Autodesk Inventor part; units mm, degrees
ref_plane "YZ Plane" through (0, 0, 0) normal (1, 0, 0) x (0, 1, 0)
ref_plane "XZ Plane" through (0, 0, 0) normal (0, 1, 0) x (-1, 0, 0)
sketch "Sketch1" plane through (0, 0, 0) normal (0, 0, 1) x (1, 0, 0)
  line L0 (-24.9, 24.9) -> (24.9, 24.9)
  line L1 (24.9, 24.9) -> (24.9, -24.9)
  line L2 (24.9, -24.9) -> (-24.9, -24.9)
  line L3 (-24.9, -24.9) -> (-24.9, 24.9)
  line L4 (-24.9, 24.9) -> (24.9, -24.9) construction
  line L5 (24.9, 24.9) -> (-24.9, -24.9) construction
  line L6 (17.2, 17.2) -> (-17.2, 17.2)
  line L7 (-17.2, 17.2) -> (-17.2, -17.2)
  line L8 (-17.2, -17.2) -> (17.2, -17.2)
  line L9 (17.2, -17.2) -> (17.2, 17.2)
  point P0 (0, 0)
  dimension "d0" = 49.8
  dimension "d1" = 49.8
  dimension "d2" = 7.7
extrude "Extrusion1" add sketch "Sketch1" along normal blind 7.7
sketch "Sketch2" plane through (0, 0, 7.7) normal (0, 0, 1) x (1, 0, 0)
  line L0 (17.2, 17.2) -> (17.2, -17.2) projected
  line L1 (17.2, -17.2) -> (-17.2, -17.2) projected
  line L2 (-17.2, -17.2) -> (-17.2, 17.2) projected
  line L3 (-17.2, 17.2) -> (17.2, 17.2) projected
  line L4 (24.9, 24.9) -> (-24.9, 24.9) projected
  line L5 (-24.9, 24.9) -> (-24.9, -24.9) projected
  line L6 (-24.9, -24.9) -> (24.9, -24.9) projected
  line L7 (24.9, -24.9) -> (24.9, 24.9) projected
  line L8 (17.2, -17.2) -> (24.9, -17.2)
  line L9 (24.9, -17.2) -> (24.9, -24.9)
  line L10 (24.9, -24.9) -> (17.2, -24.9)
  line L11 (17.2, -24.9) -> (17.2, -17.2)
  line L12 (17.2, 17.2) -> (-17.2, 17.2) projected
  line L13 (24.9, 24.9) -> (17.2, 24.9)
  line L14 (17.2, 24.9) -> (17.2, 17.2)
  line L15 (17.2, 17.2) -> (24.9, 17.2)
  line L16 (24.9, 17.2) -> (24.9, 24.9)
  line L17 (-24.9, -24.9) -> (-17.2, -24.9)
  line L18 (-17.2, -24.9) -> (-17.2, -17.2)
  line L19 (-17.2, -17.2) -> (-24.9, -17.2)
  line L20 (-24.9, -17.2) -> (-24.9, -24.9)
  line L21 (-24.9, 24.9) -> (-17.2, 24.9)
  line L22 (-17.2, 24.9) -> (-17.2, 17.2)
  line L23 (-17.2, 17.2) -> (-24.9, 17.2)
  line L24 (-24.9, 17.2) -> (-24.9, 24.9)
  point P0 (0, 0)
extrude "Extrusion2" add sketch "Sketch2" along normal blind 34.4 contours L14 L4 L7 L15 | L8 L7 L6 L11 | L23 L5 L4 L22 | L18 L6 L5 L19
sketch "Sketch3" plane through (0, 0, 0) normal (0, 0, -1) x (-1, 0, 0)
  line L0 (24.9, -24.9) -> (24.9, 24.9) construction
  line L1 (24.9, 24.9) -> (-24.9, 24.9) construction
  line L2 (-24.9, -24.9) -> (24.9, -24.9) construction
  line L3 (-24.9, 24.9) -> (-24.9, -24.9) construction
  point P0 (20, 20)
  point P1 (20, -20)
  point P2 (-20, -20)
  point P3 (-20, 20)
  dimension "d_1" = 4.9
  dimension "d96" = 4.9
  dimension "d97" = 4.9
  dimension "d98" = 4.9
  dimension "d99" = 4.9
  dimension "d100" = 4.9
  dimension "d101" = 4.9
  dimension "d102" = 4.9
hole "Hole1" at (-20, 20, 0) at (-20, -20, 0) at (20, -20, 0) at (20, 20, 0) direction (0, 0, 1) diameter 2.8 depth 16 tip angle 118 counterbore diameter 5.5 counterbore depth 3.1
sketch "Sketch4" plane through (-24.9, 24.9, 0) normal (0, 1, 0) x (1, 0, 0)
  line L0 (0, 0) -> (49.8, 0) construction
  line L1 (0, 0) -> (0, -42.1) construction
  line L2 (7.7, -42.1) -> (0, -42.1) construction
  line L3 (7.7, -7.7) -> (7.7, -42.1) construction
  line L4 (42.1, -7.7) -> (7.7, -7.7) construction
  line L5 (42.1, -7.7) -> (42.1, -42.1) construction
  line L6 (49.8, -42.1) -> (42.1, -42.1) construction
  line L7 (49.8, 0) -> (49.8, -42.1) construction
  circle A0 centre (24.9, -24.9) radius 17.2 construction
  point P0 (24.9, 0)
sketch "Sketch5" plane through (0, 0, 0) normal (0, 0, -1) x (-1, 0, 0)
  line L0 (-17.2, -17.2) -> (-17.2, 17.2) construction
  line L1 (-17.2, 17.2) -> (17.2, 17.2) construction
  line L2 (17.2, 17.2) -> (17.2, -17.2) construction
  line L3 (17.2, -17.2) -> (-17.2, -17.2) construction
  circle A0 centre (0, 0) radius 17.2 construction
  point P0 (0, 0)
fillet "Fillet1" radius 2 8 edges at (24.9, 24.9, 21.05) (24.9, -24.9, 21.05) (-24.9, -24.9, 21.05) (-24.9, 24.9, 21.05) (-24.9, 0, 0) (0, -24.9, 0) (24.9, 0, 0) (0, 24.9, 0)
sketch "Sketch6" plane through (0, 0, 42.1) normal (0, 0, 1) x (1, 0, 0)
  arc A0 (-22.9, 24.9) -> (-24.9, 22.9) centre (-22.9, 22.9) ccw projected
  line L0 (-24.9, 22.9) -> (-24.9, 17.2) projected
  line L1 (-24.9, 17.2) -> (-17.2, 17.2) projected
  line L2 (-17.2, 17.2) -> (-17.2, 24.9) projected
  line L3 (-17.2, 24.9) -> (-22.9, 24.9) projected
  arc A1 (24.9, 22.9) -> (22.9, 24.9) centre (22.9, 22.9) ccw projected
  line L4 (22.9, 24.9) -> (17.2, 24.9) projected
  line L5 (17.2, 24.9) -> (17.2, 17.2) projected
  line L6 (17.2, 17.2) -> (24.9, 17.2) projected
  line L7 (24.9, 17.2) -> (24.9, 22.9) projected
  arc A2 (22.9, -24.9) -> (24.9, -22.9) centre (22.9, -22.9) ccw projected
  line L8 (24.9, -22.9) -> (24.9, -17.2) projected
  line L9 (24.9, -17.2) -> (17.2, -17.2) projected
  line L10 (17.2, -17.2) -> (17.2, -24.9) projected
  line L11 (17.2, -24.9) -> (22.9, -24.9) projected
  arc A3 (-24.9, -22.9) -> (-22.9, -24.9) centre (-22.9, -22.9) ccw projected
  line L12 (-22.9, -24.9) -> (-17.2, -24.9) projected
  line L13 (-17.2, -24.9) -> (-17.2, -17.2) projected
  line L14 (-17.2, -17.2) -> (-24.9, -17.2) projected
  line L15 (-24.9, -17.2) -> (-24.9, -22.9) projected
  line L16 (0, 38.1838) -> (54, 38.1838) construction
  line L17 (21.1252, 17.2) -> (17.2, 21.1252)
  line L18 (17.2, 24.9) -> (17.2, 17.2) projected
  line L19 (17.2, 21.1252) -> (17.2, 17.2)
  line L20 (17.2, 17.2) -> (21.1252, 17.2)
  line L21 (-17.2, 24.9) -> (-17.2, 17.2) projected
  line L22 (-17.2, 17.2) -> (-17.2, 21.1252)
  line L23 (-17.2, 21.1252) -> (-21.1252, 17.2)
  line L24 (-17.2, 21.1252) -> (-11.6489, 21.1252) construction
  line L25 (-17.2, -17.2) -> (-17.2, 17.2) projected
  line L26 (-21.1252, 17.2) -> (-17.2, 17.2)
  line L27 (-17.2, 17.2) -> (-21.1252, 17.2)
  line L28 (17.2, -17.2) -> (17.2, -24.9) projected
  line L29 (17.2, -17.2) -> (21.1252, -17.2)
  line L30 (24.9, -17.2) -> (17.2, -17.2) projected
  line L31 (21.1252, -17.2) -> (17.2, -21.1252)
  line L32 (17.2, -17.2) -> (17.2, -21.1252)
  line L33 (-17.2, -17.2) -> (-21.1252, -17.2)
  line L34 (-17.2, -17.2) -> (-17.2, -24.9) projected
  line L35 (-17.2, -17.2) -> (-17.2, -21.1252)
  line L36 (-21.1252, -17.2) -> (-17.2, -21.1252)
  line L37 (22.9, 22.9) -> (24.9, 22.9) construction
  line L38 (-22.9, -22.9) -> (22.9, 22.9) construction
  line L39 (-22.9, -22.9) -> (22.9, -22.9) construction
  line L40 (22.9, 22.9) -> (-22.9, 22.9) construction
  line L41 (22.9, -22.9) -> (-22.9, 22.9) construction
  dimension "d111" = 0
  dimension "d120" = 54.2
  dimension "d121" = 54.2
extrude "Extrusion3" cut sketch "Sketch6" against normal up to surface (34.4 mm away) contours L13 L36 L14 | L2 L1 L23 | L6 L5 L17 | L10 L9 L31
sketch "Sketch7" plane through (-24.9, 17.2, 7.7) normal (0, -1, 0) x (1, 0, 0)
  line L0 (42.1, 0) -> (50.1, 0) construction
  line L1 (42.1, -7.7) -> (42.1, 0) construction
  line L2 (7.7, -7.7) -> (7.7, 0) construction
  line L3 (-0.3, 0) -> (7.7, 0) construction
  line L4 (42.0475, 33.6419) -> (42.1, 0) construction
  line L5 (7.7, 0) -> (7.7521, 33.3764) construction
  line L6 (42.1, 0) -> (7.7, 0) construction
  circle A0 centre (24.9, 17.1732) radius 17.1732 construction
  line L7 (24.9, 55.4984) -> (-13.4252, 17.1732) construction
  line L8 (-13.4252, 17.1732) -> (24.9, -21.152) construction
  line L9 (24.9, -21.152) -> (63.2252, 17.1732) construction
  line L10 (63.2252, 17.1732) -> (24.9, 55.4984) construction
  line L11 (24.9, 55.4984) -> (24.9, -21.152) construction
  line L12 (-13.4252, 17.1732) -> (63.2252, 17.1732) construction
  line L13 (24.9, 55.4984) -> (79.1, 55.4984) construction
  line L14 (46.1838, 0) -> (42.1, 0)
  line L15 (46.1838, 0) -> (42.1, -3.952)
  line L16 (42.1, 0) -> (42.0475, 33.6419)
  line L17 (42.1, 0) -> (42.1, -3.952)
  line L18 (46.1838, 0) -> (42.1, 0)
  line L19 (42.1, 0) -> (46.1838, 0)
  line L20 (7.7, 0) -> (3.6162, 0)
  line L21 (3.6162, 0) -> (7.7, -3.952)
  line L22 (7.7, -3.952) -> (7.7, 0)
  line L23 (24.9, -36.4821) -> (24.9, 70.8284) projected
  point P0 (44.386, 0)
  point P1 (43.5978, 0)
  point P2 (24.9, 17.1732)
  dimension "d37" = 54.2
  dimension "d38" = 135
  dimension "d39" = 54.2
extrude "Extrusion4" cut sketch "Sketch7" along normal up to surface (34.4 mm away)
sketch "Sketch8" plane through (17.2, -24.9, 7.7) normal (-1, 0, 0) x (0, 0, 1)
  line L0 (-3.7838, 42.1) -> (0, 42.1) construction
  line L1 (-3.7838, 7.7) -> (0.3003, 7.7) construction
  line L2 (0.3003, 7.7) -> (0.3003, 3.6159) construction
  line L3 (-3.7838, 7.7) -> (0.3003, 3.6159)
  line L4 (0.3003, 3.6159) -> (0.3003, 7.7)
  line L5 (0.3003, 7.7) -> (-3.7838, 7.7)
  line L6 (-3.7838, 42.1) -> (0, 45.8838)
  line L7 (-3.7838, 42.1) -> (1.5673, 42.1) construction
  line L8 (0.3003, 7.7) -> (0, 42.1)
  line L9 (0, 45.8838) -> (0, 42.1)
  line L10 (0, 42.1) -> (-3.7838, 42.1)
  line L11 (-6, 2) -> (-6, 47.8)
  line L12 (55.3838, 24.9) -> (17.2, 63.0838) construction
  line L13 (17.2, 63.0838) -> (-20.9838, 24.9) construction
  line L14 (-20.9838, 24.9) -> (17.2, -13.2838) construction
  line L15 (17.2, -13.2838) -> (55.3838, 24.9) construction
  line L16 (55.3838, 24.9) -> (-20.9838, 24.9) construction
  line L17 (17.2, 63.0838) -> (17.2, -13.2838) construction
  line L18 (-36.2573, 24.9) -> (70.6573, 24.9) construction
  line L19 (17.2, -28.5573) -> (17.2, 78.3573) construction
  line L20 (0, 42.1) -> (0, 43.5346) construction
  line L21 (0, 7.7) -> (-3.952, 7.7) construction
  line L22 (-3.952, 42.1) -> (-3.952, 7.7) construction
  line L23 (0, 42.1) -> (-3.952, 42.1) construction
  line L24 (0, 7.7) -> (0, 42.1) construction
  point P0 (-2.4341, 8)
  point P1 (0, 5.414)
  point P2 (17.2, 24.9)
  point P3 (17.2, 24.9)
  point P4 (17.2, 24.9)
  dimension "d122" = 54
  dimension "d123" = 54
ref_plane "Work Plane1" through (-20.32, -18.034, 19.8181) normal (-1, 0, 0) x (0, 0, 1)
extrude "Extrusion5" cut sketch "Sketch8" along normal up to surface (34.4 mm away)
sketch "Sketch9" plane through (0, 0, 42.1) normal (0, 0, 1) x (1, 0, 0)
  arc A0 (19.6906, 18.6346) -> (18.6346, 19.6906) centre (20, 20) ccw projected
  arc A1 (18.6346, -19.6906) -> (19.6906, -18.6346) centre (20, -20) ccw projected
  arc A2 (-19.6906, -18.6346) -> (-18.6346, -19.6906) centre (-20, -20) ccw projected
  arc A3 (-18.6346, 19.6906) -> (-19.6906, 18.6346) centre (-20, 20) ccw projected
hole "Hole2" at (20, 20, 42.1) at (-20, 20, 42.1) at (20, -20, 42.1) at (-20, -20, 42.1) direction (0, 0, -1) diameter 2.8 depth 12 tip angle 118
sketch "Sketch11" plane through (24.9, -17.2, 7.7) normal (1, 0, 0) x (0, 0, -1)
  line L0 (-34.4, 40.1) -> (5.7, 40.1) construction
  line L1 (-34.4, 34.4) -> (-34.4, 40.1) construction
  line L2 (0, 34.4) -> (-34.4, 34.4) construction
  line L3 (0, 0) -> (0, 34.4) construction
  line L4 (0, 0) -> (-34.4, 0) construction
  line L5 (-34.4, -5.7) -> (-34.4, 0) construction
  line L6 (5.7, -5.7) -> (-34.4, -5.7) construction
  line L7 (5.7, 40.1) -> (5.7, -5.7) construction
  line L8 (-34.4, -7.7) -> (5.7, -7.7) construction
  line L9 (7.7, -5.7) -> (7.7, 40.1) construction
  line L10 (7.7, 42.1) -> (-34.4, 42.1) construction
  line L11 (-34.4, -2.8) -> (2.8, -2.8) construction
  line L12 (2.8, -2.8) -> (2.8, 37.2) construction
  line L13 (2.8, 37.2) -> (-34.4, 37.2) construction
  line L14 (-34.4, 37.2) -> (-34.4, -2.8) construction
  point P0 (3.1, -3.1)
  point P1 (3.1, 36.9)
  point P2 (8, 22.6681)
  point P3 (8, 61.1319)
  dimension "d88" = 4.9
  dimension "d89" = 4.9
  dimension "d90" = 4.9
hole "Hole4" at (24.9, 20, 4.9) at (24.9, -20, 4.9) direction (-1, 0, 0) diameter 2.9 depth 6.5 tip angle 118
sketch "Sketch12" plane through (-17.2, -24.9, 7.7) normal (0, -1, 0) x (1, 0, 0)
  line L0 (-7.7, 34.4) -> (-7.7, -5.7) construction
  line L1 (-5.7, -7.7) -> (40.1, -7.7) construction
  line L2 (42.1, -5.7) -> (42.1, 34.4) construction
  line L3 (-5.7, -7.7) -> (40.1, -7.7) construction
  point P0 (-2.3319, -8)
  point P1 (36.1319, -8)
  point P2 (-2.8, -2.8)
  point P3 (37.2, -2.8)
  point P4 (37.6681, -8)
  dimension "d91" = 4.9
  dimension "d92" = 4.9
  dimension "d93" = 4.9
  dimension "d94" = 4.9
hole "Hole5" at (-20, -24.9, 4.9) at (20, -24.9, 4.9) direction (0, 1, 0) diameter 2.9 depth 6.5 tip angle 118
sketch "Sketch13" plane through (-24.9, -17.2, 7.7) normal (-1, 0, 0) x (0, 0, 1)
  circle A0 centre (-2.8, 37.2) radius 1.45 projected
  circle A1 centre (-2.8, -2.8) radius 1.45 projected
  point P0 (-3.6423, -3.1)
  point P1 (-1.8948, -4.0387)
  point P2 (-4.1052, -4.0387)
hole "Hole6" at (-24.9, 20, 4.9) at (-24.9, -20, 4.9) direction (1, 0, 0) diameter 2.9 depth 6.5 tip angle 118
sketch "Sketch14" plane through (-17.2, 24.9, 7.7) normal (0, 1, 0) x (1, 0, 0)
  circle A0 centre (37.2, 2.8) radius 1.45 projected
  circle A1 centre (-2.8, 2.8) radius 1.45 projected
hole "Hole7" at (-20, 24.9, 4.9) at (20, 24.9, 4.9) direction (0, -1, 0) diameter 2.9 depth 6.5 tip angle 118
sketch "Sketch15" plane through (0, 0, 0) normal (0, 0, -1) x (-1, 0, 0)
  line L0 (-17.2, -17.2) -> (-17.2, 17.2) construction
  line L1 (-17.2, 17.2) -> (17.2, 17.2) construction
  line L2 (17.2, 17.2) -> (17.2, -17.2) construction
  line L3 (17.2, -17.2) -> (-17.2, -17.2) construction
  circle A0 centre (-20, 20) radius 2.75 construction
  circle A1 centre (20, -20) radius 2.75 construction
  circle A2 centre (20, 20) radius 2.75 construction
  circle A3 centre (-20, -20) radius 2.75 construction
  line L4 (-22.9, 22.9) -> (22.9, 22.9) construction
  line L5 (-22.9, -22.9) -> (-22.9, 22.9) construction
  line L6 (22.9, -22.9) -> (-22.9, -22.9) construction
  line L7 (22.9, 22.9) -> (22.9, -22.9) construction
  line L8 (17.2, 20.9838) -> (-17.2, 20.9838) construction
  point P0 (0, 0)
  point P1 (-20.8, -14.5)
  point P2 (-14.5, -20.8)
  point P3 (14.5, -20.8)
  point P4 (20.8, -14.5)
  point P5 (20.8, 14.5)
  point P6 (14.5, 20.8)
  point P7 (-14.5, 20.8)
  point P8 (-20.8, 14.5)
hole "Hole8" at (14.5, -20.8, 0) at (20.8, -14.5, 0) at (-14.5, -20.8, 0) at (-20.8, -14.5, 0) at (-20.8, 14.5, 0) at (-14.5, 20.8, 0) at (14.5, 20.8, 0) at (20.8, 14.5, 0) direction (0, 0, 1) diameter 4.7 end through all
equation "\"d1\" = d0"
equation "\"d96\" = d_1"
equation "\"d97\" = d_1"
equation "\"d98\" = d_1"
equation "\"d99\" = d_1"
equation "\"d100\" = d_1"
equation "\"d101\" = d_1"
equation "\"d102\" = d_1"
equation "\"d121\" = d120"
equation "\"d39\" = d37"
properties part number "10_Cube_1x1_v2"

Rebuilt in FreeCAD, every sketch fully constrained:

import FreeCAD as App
import Part
import Sketcher
Q = App.Units.Quantity


def edges_at(feature, points):
    """Names of the edges that pass closest to the given points."""
    edges = feature.Shape.Edges
    near = lambda p: min(range(len(edges)), key=lambda i: edges[i].distToShape(Part.Vertex(*p))[0])
    return sorted({f"Edge{near(p) + 1}" for p in points})

doc = App.newDocument("Part")
body = doc.addObject("PartDesign::Body", "Body")

sketch1 = doc.addObject("Sketcher::SketchObject", "Sketch")
body.addObject(sketch1)
sketch1.AttachmentSupport = (doc.XY_Plane, [""])
sketch1.MapMode = "FlatFace"
sketch1.addGeometry([
    Part.LineSegment(App.Vector(24.9, 24.9, 0), App.Vector(-24.9, 24.9, 0)),
    Part.LineSegment(App.Vector(-24.9, 24.9, 0), App.Vector(-24.9, -24.9, 0)),
    Part.LineSegment(App.Vector(-24.9, -24.9, 0), App.Vector(24.9, -24.9, 0)),
    Part.LineSegment(App.Vector(24.9, -24.9, 0), App.Vector(24.9, 24.9, 0)),
    Part.LineSegment(App.Vector(-17.2, 17.2, 0), App.Vector(17.2, 17.2, 0)),
    Part.LineSegment(App.Vector(17.2, 17.2, 0), App.Vector(17.2, -17.2, 0)),
    Part.LineSegment(App.Vector(17.2, -17.2, 0), App.Vector(-17.2, -17.2, 0)),
    Part.LineSegment(App.Vector(-17.2, -17.2, 0), App.Vector(-17.2, 17.2, 0)),
], False)
sketch1.addConstraint([
    Sketcher.Constraint("Coincident", 0, 2, 1, 1),
    Sketcher.Constraint("Coincident", 1, 2, 2, 1),
    Sketcher.Constraint("Coincident", 2, 2, 3, 1),
    Sketcher.Constraint("Coincident", 3, 2, 0, 1),
    Sketcher.Constraint("Coincident", 4, 2, 5, 1),
    Sketcher.Constraint("Coincident", 5, 2, 6, 1),
    Sketcher.Constraint("Coincident", 6, 2, 7, 1),
    Sketcher.Constraint("Coincident", 7, 2, 4, 1),
    Sketcher.Constraint("Horizontal", 0),
    Sketcher.Constraint("Vertical", 1),
    Sketcher.Constraint("Horizontal", 2),
    Sketcher.Constraint("Vertical", 3),
    Sketcher.Constraint("Horizontal", 4),
    Sketcher.Constraint("Vertical", 5),
    Sketcher.Constraint("Horizontal", 6),
    Sketcher.Constraint("Vertical", 7),
    Sketcher.Constraint("Symmetric", 0, 2, 2, 2, -1, 1),
    Sketcher.Constraint("Symmetric", 4, 2, 6, 2, -1, 1),
    Sketcher.Constraint("Equal", 2, 1),
    Sketcher.Constraint("Equal", 6, 5),
    Sketcher.Constraint("DistanceX", 0, 2, 0, 1, Q("49.8 mm")),
    Sketcher.Constraint("DistanceX", 4, 2, 3, 2, Q("7.7 mm")),
])
pad1 = doc.addObject("PartDesign::Pad", "Pad")
body.addObject(pad1)
pad1.Profile = sketch1
pad1.Length = 7.7

sketch2 = doc.addObject("Sketcher::SketchObject", "Sketch001")
body.addObject(sketch2)
sketch2.AttachmentSupport = (doc.XY_Plane, [""])
sketch2.MapMode = "FlatFace"
sketch2.AttachmentOffset = App.Placement(App.Vector(0, 0, 7.7), App.Rotation())
sketch2.addGeometry([
    Part.LineSegment(App.Vector(17.2, 24.9, 0), App.Vector(17.2, 17.2, 0)),
    Part.LineSegment(App.Vector(17.2, 17.2, 0), App.Vector(24.9, 17.2, 0)),
    Part.LineSegment(App.Vector(24.9, 17.2, 0), App.Vector(24.9, 24.9, 0)),
    Part.LineSegment(App.Vector(24.9, 24.9, 0), App.Vector(17.2, 24.9, 0)),
    Part.LineSegment(App.Vector(24.9, -17.2, 0), App.Vector(17.2, -17.2, 0)),
    Part.LineSegment(App.Vector(17.2, -17.2, 0), App.Vector(17.2, -24.9, 0)),
    Part.LineSegment(App.Vector(17.2, -24.9, 0), App.Vector(24.9, -24.9, 0)),
    Part.LineSegment(App.Vector(24.9, -24.9, 0), App.Vector(24.9, -17.2, 0)),
    Part.LineSegment(App.Vector(-24.9, 17.2, 0), App.Vector(-17.2, 17.2, 0)),
    Part.LineSegment(App.Vector(-17.2, 17.2, 0), App.Vector(-17.2, 24.9, 0)),
    Part.LineSegment(App.Vector(-17.2, 24.9, 0), App.Vector(-24.9, 24.9, 0)),
    Part.LineSegment(App.Vector(-24.9, 24.9, 0), App.Vector(-24.9, 17.2, 0)),
    Part.LineSegment(App.Vector(-17.2, -24.9, 0), App.Vector(-17.2, -17.2, 0)),
    Part.LineSegment(App.Vector(-17.2, -17.2, 0), App.Vector(-24.9, -17.2, 0)),
    Part.LineSegment(App.Vector(-24.9, -17.2, 0), App.Vector(-24.9, -24.9, 0)),
    Part.LineSegment(App.Vector(-24.9, -24.9, 0), App.Vector(-17.2, -24.9, 0)),
], False)
sketch2.addConstraint([
    Sketcher.Constraint("Coincident", 0, 2, 1, 1),
    Sketcher.Constraint("Coincident", 1, 2, 2, 1),
    Sketcher.Constraint("Coincident", 2, 2, 3, 1),
    Sketcher.Constraint("Coincident", 3, 2, 0, 1),
    Sketcher.Constraint("Coincident", 4, 2, 5, 1),
    Sketcher.Constraint("Coincident", 5, 2, 6, 1),
    Sketcher.Constraint("Coincident", 6, 2, 7, 1),
    Sketcher.Constraint("Coincident", 7, 2, 4, 1),
    Sketcher.Constraint("Coincident", 8, 2, 9, 1),
    Sketcher.Constraint("Coincident", 9, 2, 10, 1),
    Sketcher.Constraint("Coincident", 10, 2, 11, 1),
    Sketcher.Constraint("Coincident", 11, 2, 8, 1),
    Sketcher.Constraint("Coincident", 12, 2, 13, 1),
    Sketcher.Constraint("Coincident", 13, 2, 14, 1),
    Sketcher.Constraint("Coincident", 14, 2, 15, 1),
    Sketcher.Constraint("Coincident", 15, 2, 12, 1),
    Sketcher.Constraint("Vertical", 0),
    Sketcher.Constraint("Horizontal", 1),
    Sketcher.Constraint("Vertical", 2),
    Sketcher.Constraint("Horizontal", 3),
    Sketcher.Constraint("Horizontal", 4),
    Sketcher.Constraint("Vertical", 5),
    Sketcher.Constraint("Horizontal", 6),
    Sketcher.Constraint("Vertical", 7),
    Sketcher.Constraint("Horizontal", 8),
    Sketcher.Constraint("Vertical", 9),
    Sketcher.Constraint("Horizontal", 10),
    Sketcher.Constraint("Vertical", 11),
    Sketcher.Constraint("Vertical", 12),
    Sketcher.Constraint("Horizontal", 13),
    Sketcher.Constraint("Vertical", 14),
    Sketcher.Constraint("Horizontal", 15),
    Sketcher.Constraint("Symmetric", 4, 2, 8, 2, -1, 1),
    Sketcher.Constraint("Symmetric", 6, 2, 10, 2, -1, 1),
    Sketcher.Constraint("Symmetric", 0, 2, 12, 2, -1, 1),
    Sketcher.Constraint("Symmetric", 2, 2, 14, 2, -1, 1),
    Sketcher.Constraint("Symmetric", 0, 2, 8, 2, -2),
    Sketcher.Constraint("Symmetric", 2, 2, 10, 2, -2),
    Sketcher.Constraint("Equal", 15, 0),
    Sketcher.Constraint("DistanceX", 1, 1, 1, 2, Q("7.7 mm")),
    Sketcher.Constraint("DistanceX", -1, 1, 0, 2, Q("17.2 mm")),
    Sketcher.Constraint("DistanceY", -1, 1, 0, 2, Q("17.2 mm")),
])
pad2 = doc.addObject("PartDesign::Pad", "Pad001")
body.addObject(pad2)
pad2.Profile = sketch2
pad2.Length = 34.4

sketch3 = doc.addObject("Sketcher::SketchObject", "Sketch002")
body.addObject(sketch3)
sketch3.AttachmentSupport = (doc.XY_Plane, [""])
sketch3.MapMode = "FlatFace"
sketch3.addGeometry([
    Part.Circle(App.Vector(-20, 20, 0), App.Vector(0, 0, 1), 1.4),
    Part.Circle(App.Vector(-20, -20, 0), App.Vector(0, 0, 1), 1.4),
    Part.Circle(App.Vector(20, -20, 0), App.Vector(0, 0, 1), 1.4),
    Part.Circle(App.Vector(20, 20, 0), App.Vector(0, 0, 1), 1.4),
], False)
sketch3.addConstraint([
    Sketcher.Constraint("Equal", 0, 1),
    Sketcher.Constraint("Equal", 1, 2),
    Sketcher.Constraint("Equal", 2, 3),
    Sketcher.Constraint("Symmetric", 0, 3, 2, 3, -1, 1),
    Sketcher.Constraint("Symmetric", 1, 3, 3, 3, -1, 1),
    Sketcher.Constraint("Symmetric", 1, 3, 2, 3, -2),
    Sketcher.Constraint("Diameter", 0, Q("2.8 mm")),
    Sketcher.Constraint("DistanceX", 0, 3, -1, 1, Q("20 mm")),
    Sketcher.Constraint("DistanceY", -1, 1, 0, 3, Q("20 mm")),
])
doc.recompute()
hole = doc.addObject("PartDesign::Hole", "Hole")
body.addObject(hole)
hole.Profile = sketch3
hole.ThreadType = "None"
hole.Diameter = 2.8
hole.DepthType = "Dimension"
hole.Depth = 16
hole.DrillPoint = "Angled"
hole.DrillPointAngle = 118
hole.HoleCutType = "Counterbore"
hole.HoleCutDiameter = 5.5
hole.HoleCutDepth = 3.1
hole.Reversed = True
doc.recompute()

fillet = doc.addObject("PartDesign::Fillet", "Fillet")
body.addObject(fillet)
fillet.Base = (hole, edges_at(hole, [
    (24.9, 24.9, 21.05),
    (24.9, -24.9, 21.05),
    (-24.9, -24.9, 21.05),
    (-24.9, 24.9, 21.05),
    (-24.9, 0, 0),
    (0, -24.9, 0),
    (24.9, 0, 0),
    (0, 24.9, 0),
]))
fillet.Radius = 2

sketch4 = doc.addObject("Sketcher::SketchObject", "Sketch003")
body.addObject(sketch4)
sketch4.AttachmentSupport = (doc.XY_Plane, [""])
sketch4.MapMode = "FlatFace"
sketch4.AttachmentOffset = App.Placement(App.Vector(0, 0, 42.1), App.Rotation())
sketch4.addGeometry([
    Part.LineSegment(App.Vector(-17.2, -21.1252, 0), App.Vector(-17.2, -17.2, 0)),
    Part.LineSegment(App.Vector(-17.2, -17.2, 0), App.Vector(-21.1252, -17.2, 0)),
    Part.LineSegment(App.Vector(-21.1252, -17.2, 0), App.Vector(-17.2, -21.1252, 0)),
    Part.LineSegment(App.Vector(-17.2, 17.2, 0), App.Vector(-17.2, 21.1252, 0)),
    Part.LineSegment(App.Vector(-17.2, 21.1252, 0), App.Vector(-21.1252, 17.2, 0)),
    Part.LineSegment(App.Vector(-21.1252, 17.2, 0), App.Vector(-17.2, 17.2, 0)),
    Part.LineSegment(App.Vector(17.2, 17.2, 0), App.Vector(21.1252, 17.2, 0)),
    Part.LineSegment(App.Vector(21.1252, 17.2, 0), App.Vector(17.2, 21.1252, 0)),
    Part.LineSegment(App.Vector(17.2, 21.1252, 0), App.Vector(17.2, 17.2, 0)),
    Part.LineSegment(App.Vector(17.2, -17.2, 0), App.Vector(17.2, -21.1252, 0)),
    Part.LineSegment(App.Vector(17.2, -21.1252, 0), App.Vector(21.1252, -17.2, 0)),
    Part.LineSegment(App.Vector(21.1252, -17.2, 0), App.Vector(17.2, -17.2, 0)),
], False)
sketch4.addConstraint([
    Sketcher.Constraint("Coincident", 0, 2, 1, 1),
    Sketcher.Constraint("Coincident", 1, 2, 2, 1),
    Sketcher.Constraint("Coincident", 2, 2, 0, 1),
    Sketcher.Constraint("Coincident", 3, 2, 4, 1),
    Sketcher.Constraint("Coincident", 4, 2, 5, 1),
    Sketcher.Constraint("Coincident", 5, 2, 3, 1),
    Sketcher.Constraint("Coincident", 6, 2, 7, 1),
    Sketcher.Constraint("Coincident", 7, 2, 8, 1),
    Sketcher.Constraint("Coincident", 8, 2, 6, 1),
    Sketcher.Constraint("Coincident", 9, 2, 10, 1),
    Sketcher.Constraint("Coincident", 10, 2, 11, 1),
    Sketcher.Constraint("Coincident", 11, 2, 9, 1),
    Sketcher.Constraint("Vertical", 0),
    Sketcher.Constraint("Horizontal", 1),
    Sketcher.Constraint("Vertical", 3),
    Sketcher.Constraint("Horizontal", 5),
    Sketcher.Constraint("Horizontal", 6),
    Sketcher.Constraint("Vertical", 8),
    Sketcher.Constraint("Vertical", 9),
    Sketcher.Constraint("Horizontal", 11),
    Sketcher.Constraint("Symmetric", 1, 2, 6, 2, -1, 1),
    Sketcher.Constraint("Symmetric", 2, 2, 7, 2, -1, 1),
    Sketcher.Constraint("Symmetric", 3, 2, 9, 2, -1, 1),
    Sketcher.Constraint("Symmetric", 4, 2, 10, 2, -1, 1),
    Sketcher.Constraint("Symmetric", 4, 2, 6, 2, -2),
    Sketcher.Constraint("Symmetric", 3, 2, 7, 2, -2),
    Sketcher.Constraint("Perpendicular", 2, 4),
    Sketcher.Constraint("DistanceX", 0, 2, -1, 1, Q("17.2 mm")),
    Sketcher.Constraint("DistanceY", 0, 2, -1, 1, Q("17.2 mm")),
    Sketcher.Constraint("Distance", 2, Q("5.551 mm")),
])
pocket1 = doc.addObject("PartDesign::Pocket", "Pocket")
body.addObject(pocket1)
pocket1.Profile = sketch4
pocket1.Length = 34.4

sketch5 = doc.addObject("Sketcher::SketchObject", "Sketch004")
body.addObject(sketch5)
sketch5.AttachmentSupport = (doc.XZ_Plane, [""])
sketch5.MapMode = "FlatFace"
sketch5.AttachmentOffset = App.Placement(App.Vector(0, 0, -17.2), App.Rotation())
sketch5.addGeometry([
    Part.LineSegment(App.Vector(17.2, 3.748, 0), App.Vector(21.2838, 7.7, 0)),
    Part.LineSegment(App.Vector(21.2838, 7.7, 0), App.Vector(17.2, 7.7, 0)),
    Part.LineSegment(App.Vector(17.2, 7.7, 0), App.Vector(17.2, 3.748, 0)),
    Part.LineSegment(App.Vector(-17.2, 3.748, 0), App.Vector(-17.2, 7.7, 0)),
    Part.LineSegment(App.Vector(-17.2, 7.7, 0), App.Vector(-21.2838, 7.7, 0)),
    Part.LineSegment(App.Vector(-21.2838, 7.7, 0), App.Vector(-17.2, 3.748, 0)),
], False)
sketch5.addConstraint([
    Sketcher.Constraint("Coincident", 0, 2, 1, 1),
    Sketcher.Constraint("Coincident", 1, 2, 2, 1),
    Sketcher.Constraint("Coincident", 2, 2, 0, 1),
    Sketcher.Constraint("Coincident", 3, 2, 4, 1),
    Sketcher.Constraint("Coincident", 4, 2, 5, 1),
    Sketcher.Constraint("Coincident", 5, 2, 3, 1),
    Sketcher.Constraint("Horizontal", 1),
    Sketcher.Constraint("Vertical", 2),
    Sketcher.Constraint("Vertical", 3),
    Sketcher.Constraint("Horizontal", 4),
    Sketcher.Constraint("Symmetric", 1, 2, 3, 2, -2),
    Sketcher.Constraint("Horizontal", 2, 2, 5, 2),
    Sketcher.Constraint("Equal", 1, 4),
    Sketcher.Constraint("DistanceY", -1, 1, 0, 2, Q("7.7 mm")),
    Sketcher.Constraint("DistanceX", -1, 1, 1, 2, Q("17.2 mm")),
    Sketcher.Constraint("Angle", 0, Q("44.0603 deg")),
    Sketcher.Constraint("DistanceY", 2, 2, 2, 1, Q("3.952 mm")),
])
pocket2 = doc.addObject("PartDesign::Pocket", "Pocket001")
body.addObject(pocket2)
pocket2.Profile = sketch5
pocket2.Length = 34.4
pocket2.Reversed = True

sketch6 = doc.addObject("Sketcher::SketchObject", "Sketch005")
body.addObject(sketch6)
sketch6.AttachmentSupport = (doc.YZ_Plane, [""])
sketch6.MapMode = "FlatFace"
sketch6.AttachmentOffset = App.Placement(App.Vector(0, 0, 17.2), App.Rotation())
sketch6.addGeometry([
    Part.LineSegment(App.Vector(-17.2, 8.0003, 0), App.Vector(-17.2, 3.9162, 0)),
    Part.LineSegment(App.Vector(-17.2, 3.9162, 0), App.Vector(-21.2841, 8.0003, 0)),
    Part.LineSegment(App.Vector(-21.2841, 8.0003, 0), App.Vector(-17.2, 8.0003, 0)),
    Part.LineSegment(App.Vector(17.2, 3.9162, 0), App.Vector(17.2, 7.7, 0)),
    Part.LineSegment(App.Vector(17.2, 7.7, 0), App.Vector(20.9838, 7.7, 0)),
    Part.LineSegment(App.Vector(20.9838, 7.7, 0), App.Vector(17.2, 3.9162, 0)),
], False)
sketch6.addConstraint([
    Sketcher.Constraint("Coincident", 0, 2, 1, 1),
    Sketcher.Constraint("Coincident", 1, 2, 2, 1),
    Sketcher.Constraint("Coincident", 2, 2, 0, 1),
    Sketcher.Constraint("Coincident", 3, 2, 4, 1),
    Sketcher.Constraint("Coincident", 4, 2, 5, 1),
    Sketcher.Constraint("Coincident", 5, 2, 3, 1),
    Sketcher.Constraint("Vertical", 0),
    Sketcher.Constraint("Horizontal", 2),
    Sketcher.Constraint("Vertical", 3),
    Sketcher.Constraint("Horizontal", 4),
    Sketcher.Constraint("Symmetric", 0, 2, 5, 2, -2),
    Sketcher.Constraint("Perpendicular", 1, 5),
    Sketcher.Constraint("Equal", 2, 0),
    Sketcher.Constraint("DistanceX", 0, 2, -1, 1, Q("17.2 mm")),
    Sketcher.Constraint("DistanceY", -1, 1, 3, 2, Q("7.7 mm")),
    Sketcher.Constraint("DistanceX", 2, 1, 2, 2, Q("4.084 mm")),
    Sketcher.Constraint("Distance", 5, Q("5.351 mm")),
])
pocket3 = doc.addObject("PartDesign::Pocket", "Pocket002")
body.addObject(pocket3)
pocket3.Profile = sketch6
pocket3.Length = 34.4

sketch7 = doc.addObject("Sketcher::SketchObject", "Sketch006")
body.addObject(sketch7)
sketch7.AttachmentSupport = (doc.XY_Plane, [""])
sketch7.MapMode = "FlatFace"
sketch7.AttachmentOffset = App.Placement(App.Vector(0, 0, 42.1), App.Rotation())
sketch7.addGeometry([
    Part.Circle(App.Vector(20, 20, 0), App.Vector(0, 0, 1), 1.4),
    Part.Circle(App.Vector(-20, 20, 0), App.Vector(0, 0, 1), 1.4),
    Part.Circle(App.Vector(20, -20, 0), App.Vector(0, 0, 1), 1.4),
    Part.Circle(App.Vector(-20, -20, 0), App.Vector(0, 0, 1), 1.4),
], False)
sketch7.addConstraint([
    Sketcher.Constraint("Equal", 0, 1),
    Sketcher.Constraint("Equal", 1, 2),
    Sketcher.Constraint("Equal", 2, 3),
    Sketcher.Constraint("Symmetric", 1, 3, 2, 3, -1, 1),
    Sketcher.Constraint("Symmetric", 0, 3, 3, 3, -1, 1),
    Sketcher.Constraint("Symmetric", 0, 3, 1, 3, -2),
    Sketcher.Constraint("Diameter", 0, Q("2.8 mm")),
    Sketcher.Constraint("DistanceX", -1, 1, 0, 3, Q("20 mm")),
    Sketcher.Constraint("DistanceY", -1, 1, 0, 3, Q("20 mm")),
])
doc.recompute()
hole2 = doc.addObject("PartDesign::Hole", "Hole001")
body.addObject(hole2)
hole2.Profile = sketch7
hole2.ThreadType = "None"
hole2.Diameter = 2.8
hole2.DepthType = "Dimension"
hole2.Depth = 12
hole2.DrillPoint = "Angled"
hole2.DrillPointAngle = 118

sketch8 = doc.addObject("Sketcher::SketchObject", "Sketch007")
body.addObject(sketch8)
sketch8.AttachmentSupport = (doc.YZ_Plane, [""])
sketch8.MapMode = "FlatFace"
sketch8.AttachmentOffset = App.Placement(App.Vector(0, 0, 24.9), App.Rotation())
sketch8.addGeometry([
    Part.Circle(App.Vector(20, 4.9, 0), App.Vector(0, 0, 1), 1.45),
    Part.Circle(App.Vector(-20, 4.9, 0), App.Vector(0, 0, 1), 1.45),
], False)
sketch8.addConstraint([
    Sketcher.Constraint("Equal", 0, 1),
    Sketcher.Constraint("Symmetric", 0, 3, 1, 3, -2),
    Sketcher.Constraint("Diameter", 0, Q("2.9 mm")),
    Sketcher.Constraint("DistanceX", -1, 1, 0, 3, Q("20 mm")),
    Sketcher.Constraint("DistanceY", -1, 1, 0, 3, Q("4.9 mm")),
])
doc.recompute()
hole3 = doc.addObject("PartDesign::Hole", "Hole002")
body.addObject(hole3)
hole3.Profile = sketch8
hole3.ThreadType = "None"
hole3.Diameter = 2.9
hole3.DepthType = "Dimension"
hole3.Depth = 6.5
hole3.DrillPoint = "Angled"
hole3.DrillPointAngle = 118

sketch9 = doc.addObject("Sketcher::SketchObject", "Sketch008")
body.addObject(sketch9)
sketch9.AttachmentSupport = (doc.XZ_Plane, [""])
sketch9.MapMode = "FlatFace"
sketch9.AttachmentOffset = App.Placement(App.Vector(0, 0, 24.9), App.Rotation())
sketch9.addGeometry([
    Part.Circle(App.Vector(-20, 4.9, 0), App.Vector(0, 0, 1), 1.45),
    Part.Circle(App.Vector(20, 4.9, 0), App.Vector(0, 0, 1), 1.45),
], False)
sketch9.addConstraint([
    Sketcher.Constraint("Equal", 0, 1),
    Sketcher.Constraint("Symmetric", 0, 3, 1, 3, -2),
    Sketcher.Constraint("Diameter", 0, Q("2.9 mm")),
    Sketcher.Constraint("DistanceX", 0, 3, -1, 1, Q("20 mm")),
    Sketcher.Constraint("DistanceY", -1, 1, 0, 3, Q("4.9 mm")),
])
doc.recompute()
hole4 = doc.addObject("PartDesign::Hole", "Hole003")
body.addObject(hole4)
hole4.Profile = sketch9
hole4.ThreadType = "None"
hole4.Diameter = 2.9
hole4.DepthType = "Dimension"
hole4.Depth = 6.5
hole4.DrillPoint = "Angled"
hole4.DrillPointAngle = 118

sketch10 = doc.addObject("Sketcher::SketchObject", "Sketch009")
body.addObject(sketch10)
sketch10.AttachmentSupport = (doc.YZ_Plane, [""])
sketch10.MapMode = "FlatFace"
sketch10.AttachmentOffset = App.Placement(App.Vector(0, 0, -24.9), App.Rotation())
sketch10.addGeometry([
    Part.Circle(App.Vector(20, 4.9, 0), App.Vector(0, 0, 1), 1.45),
    Part.Circle(App.Vector(-20, 4.9, 0), App.Vector(0, 0, 1), 1.45),
], False)
sketch10.addConstraint([
    Sketcher.Constraint("Equal", 0, 1),
    Sketcher.Constraint("Symmetric", 0, 3, 1, 3, -2),
    Sketcher.Constraint("Diameter", 0, Q("2.9 mm")),
    Sketcher.Constraint("DistanceX", -1, 1, 0, 3, Q("20 mm")),
    Sketcher.Constraint("DistanceY", -1, 1, 0, 3, Q("4.9 mm")),
])
doc.recompute()
hole5 = doc.addObject("PartDesign::Hole", "Hole004")
body.addObject(hole5)
hole5.Profile = sketch10
hole5.ThreadType = "None"
hole5.Diameter = 2.9
hole5.DepthType = "Dimension"
hole5.Depth = 6.5
hole5.DrillPoint = "Angled"
hole5.DrillPointAngle = 118
hole5.Reversed = True

sketch11 = doc.addObject("Sketcher::SketchObject", "Sketch010")
body.addObject(sketch11)
sketch11.AttachmentSupport = (doc.XZ_Plane, [""])
sketch11.MapMode = "FlatFace"
sketch11.AttachmentOffset = App.Placement(App.Vector(0, 0, -24.9), App.Rotation())
sketch11.addGeometry([
    Part.Circle(App.Vector(-20, 4.9, 0), App.Vector(0, 0, 1), 1.45),
    Part.Circle(App.Vector(20, 4.9, 0), App.Vector(0, 0, 1), 1.45),
], False)
sketch11.addConstraint([
    Sketcher.Constraint("Equal", 0, 1),
    Sketcher.Constraint("Symmetric", 0, 3, 1, 3, -2),
    Sketcher.Constraint("Diameter", 0, Q("2.9 mm")),
    Sketcher.Constraint("DistanceX", 0, 3, -1, 1, Q("20 mm")),
    Sketcher.Constraint("DistanceY", -1, 1, 0, 3, Q("4.9 mm")),
])
doc.recompute()
hole6 = doc.addObject("PartDesign::Hole", "Hole005")
body.addObject(hole6)
hole6.Profile = sketch11
hole6.ThreadType = "None"
hole6.Diameter = 2.9
hole6.DepthType = "Dimension"
hole6.Depth = 6.5
hole6.DrillPoint = "Angled"
hole6.DrillPointAngle = 118
hole6.Reversed = True

sketch12 = doc.addObject("Sketcher::SketchObject", "Sketch011")
body.addObject(sketch12)
sketch12.AttachmentSupport = (doc.XY_Plane, [""])
sketch12.MapMode = "FlatFace"
sketch12.addGeometry([
    Part.Circle(App.Vector(14.5, -20.8, 0), App.Vector(0, 0, 1), 2.35),
    Part.Circle(App.Vector(20.8, -14.5, 0), App.Vector(0, 0, 1), 2.35),
    Part.Circle(App.Vector(-14.5, -20.8, 0), App.Vector(0, 0, 1), 2.35),
    Part.Circle(App.Vector(-20.8, -14.5, 0), App.Vector(0, 0, 1), 2.35),
    Part.Circle(App.Vector(-20.8, 14.5, 0), App.Vector(0, 0, 1), 2.35),
    Part.Circle(App.Vector(-14.5, 20.8, 0), App.Vector(0, 0, 1), 2.35),
    Part.Circle(App.Vector(14.5, 20.8, 0), App.Vector(0, 0, 1), 2.35),
    Part.Circle(App.Vector(20.8, 14.5, 0), App.Vector(0, 0, 1), 2.35),
], False)
sketch12.addConstraint([
    Sketcher.Constraint("Equal", 0, 1),
    Sketcher.Constraint("Equal", 1, 2),
    Sketcher.Constraint("Equal", 2, 3),
    Sketcher.Constraint("Equal", 3, 4),
    Sketcher.Constraint("Equal", 4, 5),
    Sketcher.Constraint("Equal", 5, 6),
    Sketcher.Constraint("Equal", 6, 7),
    Sketcher.Constraint("Symmetric", 1, 3, 4, 3, -1, 1),
    Sketcher.Constraint("Symmetric", 0, 3, 5, 3, -1, 1),
    Sketcher.Constraint("Symmetric", 2, 3, 6, 3, -1, 1),
    Sketcher.Constraint("Symmetric", 3, 3, 7, 3, -1, 1),
    Sketcher.Constraint("Symmetric", 0, 3, 2, 3, -2),
    Sketcher.Constraint("Symmetric", 1, 3, 3, 3, -2),
    Sketcher.Constraint("Diameter", 0, Q("4.7 mm")),
    Sketcher.Constraint("DistanceX", 2, 3, 0, 3, Q("29 mm")),
    Sketcher.Constraint("DistanceY", 3, 3, 4, 3, Q("29 mm")),
    Sketcher.Constraint("DistanceY", 0, 3, -1, 1, Q("20.8 mm")),
    Sketcher.Constraint("DistanceX", -1, 1, 1, 3, Q("20.8 mm")),
])
doc.recompute()
hole7 = doc.addObject("PartDesign::Hole", "Hole006")
body.addObject(hole7)
hole7.Profile = sketch12
hole7.ThreadType = "None"
hole7.Diameter = 4.7
hole7.DepthType = "ThroughAll"
hole7.Reversed = True

doc.recompute()
